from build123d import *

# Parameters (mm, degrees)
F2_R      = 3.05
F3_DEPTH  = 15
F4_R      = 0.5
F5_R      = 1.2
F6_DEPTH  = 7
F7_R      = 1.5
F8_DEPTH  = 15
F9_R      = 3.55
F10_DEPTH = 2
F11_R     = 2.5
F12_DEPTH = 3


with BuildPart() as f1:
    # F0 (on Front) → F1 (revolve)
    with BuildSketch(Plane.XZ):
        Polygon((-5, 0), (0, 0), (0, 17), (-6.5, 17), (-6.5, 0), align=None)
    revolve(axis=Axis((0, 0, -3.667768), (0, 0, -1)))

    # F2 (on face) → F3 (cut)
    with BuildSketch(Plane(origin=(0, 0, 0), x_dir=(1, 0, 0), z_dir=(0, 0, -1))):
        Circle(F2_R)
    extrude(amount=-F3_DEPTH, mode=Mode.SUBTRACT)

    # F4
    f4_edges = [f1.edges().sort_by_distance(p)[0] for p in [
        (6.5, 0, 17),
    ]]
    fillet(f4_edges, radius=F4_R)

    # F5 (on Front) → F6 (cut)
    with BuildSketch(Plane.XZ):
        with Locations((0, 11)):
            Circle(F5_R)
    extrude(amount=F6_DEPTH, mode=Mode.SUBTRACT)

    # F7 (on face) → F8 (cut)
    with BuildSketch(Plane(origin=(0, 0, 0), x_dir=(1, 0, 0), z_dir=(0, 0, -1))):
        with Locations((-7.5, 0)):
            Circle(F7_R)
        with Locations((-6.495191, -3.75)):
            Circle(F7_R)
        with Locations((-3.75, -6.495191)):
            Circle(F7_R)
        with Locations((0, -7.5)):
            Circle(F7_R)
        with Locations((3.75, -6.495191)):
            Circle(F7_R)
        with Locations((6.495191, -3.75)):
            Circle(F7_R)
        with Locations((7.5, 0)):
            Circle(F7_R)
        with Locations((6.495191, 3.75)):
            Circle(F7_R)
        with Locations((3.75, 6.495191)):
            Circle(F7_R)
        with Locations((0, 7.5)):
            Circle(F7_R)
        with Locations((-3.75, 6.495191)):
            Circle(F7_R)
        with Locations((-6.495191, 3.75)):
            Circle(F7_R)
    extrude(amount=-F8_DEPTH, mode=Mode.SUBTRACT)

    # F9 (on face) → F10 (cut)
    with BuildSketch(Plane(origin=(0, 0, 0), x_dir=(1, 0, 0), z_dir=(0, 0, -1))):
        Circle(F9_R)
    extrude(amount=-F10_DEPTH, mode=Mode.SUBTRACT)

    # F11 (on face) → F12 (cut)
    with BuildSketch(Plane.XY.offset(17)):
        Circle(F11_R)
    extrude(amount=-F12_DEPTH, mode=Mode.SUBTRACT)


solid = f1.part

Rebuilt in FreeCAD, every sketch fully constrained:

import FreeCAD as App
import Part
import Sketcher
Q = App.Units.Quantity


def edges_at(feature, points):
    """Names of the edges that pass closest to the given points."""
    edges = feature.Shape.Edges
    near = lambda p: min(range(len(edges)), key=lambda i: edges[i].distToShape(Part.Vertex(*p))[0])
    return sorted({f"Edge{near(p) + 1}" for p in points})


def add_polygon(sketch, points):
    """Adds a closed chain of lines whose ends are joined by coincident constraints."""
    first, n = sketch.GeometryCount, len(points)
    for a, b in zip(points, points[1:] + points[:1]):
        sketch.addGeometry(Part.LineSegment(App.Vector(*a, 0), App.Vector(*b, 0)), False)
    for i in range(n):
        sketch.addConstraint(Sketcher.Constraint("Coincident", first + i, 2, first + (i + 1) % n, 1))

doc = App.newDocument("Part")
body = doc.addObject("PartDesign::Body", "Body")

# Sketch on XZ plane
sketch1 = doc.addObject("Sketcher::SketchObject", "Sketch")
body.addObject(sketch1)
sketch1.AttachmentSupport = (doc.XZ_Plane, [""])
sketch1.MapMode = "FlatFace"
add_polygon(sketch1, [(0, 0), (0, 17), (-6, 17), (-6, 0)])  # lines 0-3
sketch1.addConstraint(Sketcher.Constraint("Vertical", 0))
sketch1.addConstraint(Sketcher.Constraint("Horizontal", 1))
sketch1.addConstraint(Sketcher.Constraint("Vertical", 2))
sketch1.addConstraint(Sketcher.Constraint("Horizontal", 3))
sketch1.addConstraint(Sketcher.Constraint("Coincident", 3, 2, -1, 1))
sketch1.addConstraint(Sketcher.Constraint("DistanceY", 0, 1, 0, 2, Q("17 mm")))
sketch1.addConstraint(Sketcher.Constraint("DistanceX", 1, 2, 1, 1, Q("6.5 mm")))
revolution = doc.addObject("PartDesign::Revolution", "Revolution")
body.addObject(revolution)
revolution.Profile = sketch1
revolution.ReferenceAxis = (sketch1, ["V_Axis"])
revolution.Angle = 360

# Sketch on XY plane
sketch2 = doc.addObject("Sketcher::SketchObject", "Sketch001")
body.addObject(sketch2)
sketch2.AttachmentSupport = (doc.XY_Plane, [""])
sketch2.MapMode = "FlatFace"
sketch2.addGeometry(Part.Circle(App.Vector(0, 0, 0), App.Vector(0, 0, 1), 3), False)
sketch2.addConstraint(Sketcher.Constraint("Coincident", 0, 3, -1, 1))
sketch2.addConstraint(Sketcher.Constraint("Diameter", 0, Q("6.1 mm")))
pocket1 = doc.addObject("PartDesign::Pocket", "Pocket")
body.addObject(pocket1)
pocket1.Profile = sketch2
pocket1.Length = 15
pocket1.Reversed = True
doc.recompute()

fillet = doc.addObject("PartDesign::Fillet", "Fillet")
body.addObject(fillet)
fillet.Base = (pocket1, edges_at(pocket1, [(6.5, 0, 17)]))
fillet.Radius = 0.5

# Sketch on XZ plane
sketch3 = doc.addObject("Sketcher::SketchObject", "Sketch002")
body.addObject(sketch3)
sketch3.AttachmentSupport = (doc.XZ_Plane, [""])
sketch3.MapMode = "FlatFace"
sketch3.addGeometry(Part.Circle(App.Vector(0, 11, 0), App.Vector(0, 0, 1), 1.2), False)
sketch3.addConstraint(Sketcher.Constraint("PointOnObject", 0, 3, -2))
sketch3.addConstraint(Sketcher.Constraint("Diameter", 0, Q("2.4 mm")))
sketch3.addConstraint(Sketcher.Constraint("DistanceY", -1, 1, 0, 3, Q("11 mm")))
pocket2 = doc.addObject("PartDesign::Pocket", "Pocket001")
body.addObject(pocket2)
pocket2.Profile = sketch3
pocket2.Length = 7
pocket2.Reversed = True

# Sketch on XY plane
sketch4 = doc.addObject("Sketcher::SketchObject", "Sketch003")
body.addObject(sketch4)
sketch4.AttachmentSupport = (doc.XY_Plane, [""])
sketch4.MapMode = "FlatFace"
sketch4.addGeometry(Part.Circle(App.Vector(-7.5, 0, 0), App.Vector(0, 0, 1), 1.5), False)
sketch4.addGeometry(Part.Circle(App.Vector(-6.5, 3.8, 0), App.Vector(0, 0, 1), 1.5), False)
sketch4.addGeometry(Part.Circle(App.Vector(-3.8, 6.5, 0), App.Vector(0, 0, 1), 1.5), False)
sketch4.addGeometry(Part.Circle(App.Vector(0, 7.5, 0), App.Vector(0, 0, 1), 1.5), False)
sketch4.addGeometry(Part.Circle(App.Vector(3.8, 6.5, 0), App.Vector(0, 0, 1), 1.5), False)
sketch4.addGeometry(Part.Circle(App.Vector(6.5, 3.8, 0), App.Vector(0, 0, 1), 1.5), False)
sketch4.addGeometry(Part.Circle(App.Vector(7.5, 0, 0), App.Vector(0, 0, 1), 1.5), False)
sketch4.addGeometry(Part.Circle(App.Vector(6.5, -3.8, 0), App.Vector(0, 0, 1), 1.5), False)
sketch4.addGeometry(Part.Circle(App.Vector(3.8, -6.5, 0), App.Vector(0, 0, 1), 1.5), False)
sketch4.addGeometry(Part.Circle(App.Vector(0, -7.5, 0), App.Vector(0, 0, 1), 1.5), False)
sketch4.addGeometry(Part.Circle(App.Vector(-3.8, -6.5, 0), App.Vector(0, 0, 1), 1.5), False)
sketch4.addGeometry(Part.Circle(App.Vector(-6.5, -3.8, 0), App.Vector(0, 0, 1), 1.5), False)
sketch4.addConstraint(Sketcher.Constraint("Equal", 0, 1))
sketch4.addConstraint(Sketcher.Constraint("Equal", 1, 2))
sketch4.addConstraint(Sketcher.Constraint("Equal", 2, 3))
sketch4.addConstraint(Sketcher.Constraint("Equal", 3, 4))
sketch4.addConstraint(Sketcher.Constraint("Equal", 4, 5))
sketch4.addConstraint(Sketcher.Constraint("Equal", 5, 6))
sketch4.addConstraint(Sketcher.Constraint("Equal", 6, 7))
sketch4.addConstraint(Sketcher.Constraint("Equal", 7, 8))
sketch4.addConstraint(Sketcher.Constraint("Equal", 8, 9))
sketch4.addConstraint(Sketcher.Constraint("Equal", 9, 10))
sketch4.addConstraint(Sketcher.Constraint("Equal", 10, 11))
sketch4.addConstraint(Sketcher.Constraint("Symmetric", 0, 3, 6, 3, -1, 1))
sketch4.addConstraint(Sketcher.Constraint("Symmetric", 1, 3, 7, 3, -1, 1))
sketch4.addConstraint(Sketcher.Constraint("Symmetric", 2, 3, 8, 3, -1, 1))
sketch4.addConstraint(Sketcher.Constraint("Symmetric", 3, 3, 9, 3, -1, 1))
sketch4.addConstraint(Sketcher.Constraint("Symmetric", 4, 3, 10, 3, -1, 1))
sketch4.addConstraint(Sketcher.Constraint("Symmetric", 5, 3, 11, 3, -1, 1))
sketch4.addConstraint(Sketcher.Constraint("Symmetric", 2, 3, 4, 3, -2))
sketch4.addConstraint(Sketcher.Constraint("Symmetric", 1, 3, 5, 3, -2))
sketch4.addConstraint(Sketcher.Constraint("PointOnObject", 0, 3, -1))
sketch4.addConstraint(Sketcher.Constraint("PointOnObject", 3, 3, -2))
sketch4.addConstraint(Sketcher.Constraint("Diameter", 0, Q("3 mm")))
sketch4.addConstraint(Sketcher.Constraint("DistanceX", 0, 3, -1, 1, Q("7.5 mm")))
sketch4.addConstraint(Sketcher.Constraint("DistanceY", -1, 1, 3, 3, Q("7.5 mm")))
sketch4.addConstraint(Sketcher.Constraint("DistanceX", 2, 3, 4, 3, Q("7.5 mm")))
sketch4.addConstraint(Sketcher.Constraint("DistanceY", 7, 3, 5, 3, Q("7.5 mm")))
sketch4.addConstraint(Sketcher.Constraint("DistanceX", 1, 3, -1, 1, Q("6.495191 mm")))
sketch4.addConstraint(Sketcher.Constraint("DistanceY", -1, 1, 2, 3, Q("6.495191 mm")))
pocket3 = doc.addObject("PartDesign::Pocket", "Pocket002")
body.addObject(pocket3)
pocket3.Profile = sketch4
pocket3.Length = 15
pocket3.Reversed = True

# Sketch on XY plane
sketch5 = doc.addObject("Sketcher::SketchObject", "Sketch004")
body.addObject(sketch5)
sketch5.AttachmentSupport = (doc.XY_Plane, [""])
sketch5.MapMode = "FlatFace"
sketch5.addGeometry(Part.Circle(App.Vector(0, 0, 0), App.Vector(0, 0, 1), 3.5), False)
sketch5.addConstraint(Sketcher.Constraint("Coincident", 0, 3, -1, 1))
sketch5.addConstraint(Sketcher.Constraint("Diameter", 0, Q("7.1 mm")))
pocket4 = doc.addObject("PartDesign::Pocket", "Pocket003")
body.addObject(pocket4)
pocket4.Profile = sketch5
pocket4.Length = 2
pocket4.Reversed = True

# Sketch on XY plane
sketch6 = doc.addObject("Sketcher::SketchObject", "Sketch005")
body.addObject(sketch6)
sketch6.AttachmentSupport = (doc.XY_Plane, [""])
sketch6.MapMode = "FlatFace"
sketch6.AttachmentOffset = App.Placement(App.Vector(0, 0, 17), App.Rotation())
sketch6.addGeometry(Part.Circle(App.Vector(0, 0, 0), App.Vector(0, 0, 1), 2.5), False)
sketch6.addConstraint(Sketcher.Constraint("Coincident", 0, 3, -1, 1))
sketch6.addConstraint(Sketcher.Constraint("Diameter", 0, Q("5 mm")))
pocket5 = doc.addObject("PartDesign::Pocket", "Pocket004")
body.addObject(pocket5)
pocket5.Profile = sketch6
pocket5.Length = 3

doc.recompute()
